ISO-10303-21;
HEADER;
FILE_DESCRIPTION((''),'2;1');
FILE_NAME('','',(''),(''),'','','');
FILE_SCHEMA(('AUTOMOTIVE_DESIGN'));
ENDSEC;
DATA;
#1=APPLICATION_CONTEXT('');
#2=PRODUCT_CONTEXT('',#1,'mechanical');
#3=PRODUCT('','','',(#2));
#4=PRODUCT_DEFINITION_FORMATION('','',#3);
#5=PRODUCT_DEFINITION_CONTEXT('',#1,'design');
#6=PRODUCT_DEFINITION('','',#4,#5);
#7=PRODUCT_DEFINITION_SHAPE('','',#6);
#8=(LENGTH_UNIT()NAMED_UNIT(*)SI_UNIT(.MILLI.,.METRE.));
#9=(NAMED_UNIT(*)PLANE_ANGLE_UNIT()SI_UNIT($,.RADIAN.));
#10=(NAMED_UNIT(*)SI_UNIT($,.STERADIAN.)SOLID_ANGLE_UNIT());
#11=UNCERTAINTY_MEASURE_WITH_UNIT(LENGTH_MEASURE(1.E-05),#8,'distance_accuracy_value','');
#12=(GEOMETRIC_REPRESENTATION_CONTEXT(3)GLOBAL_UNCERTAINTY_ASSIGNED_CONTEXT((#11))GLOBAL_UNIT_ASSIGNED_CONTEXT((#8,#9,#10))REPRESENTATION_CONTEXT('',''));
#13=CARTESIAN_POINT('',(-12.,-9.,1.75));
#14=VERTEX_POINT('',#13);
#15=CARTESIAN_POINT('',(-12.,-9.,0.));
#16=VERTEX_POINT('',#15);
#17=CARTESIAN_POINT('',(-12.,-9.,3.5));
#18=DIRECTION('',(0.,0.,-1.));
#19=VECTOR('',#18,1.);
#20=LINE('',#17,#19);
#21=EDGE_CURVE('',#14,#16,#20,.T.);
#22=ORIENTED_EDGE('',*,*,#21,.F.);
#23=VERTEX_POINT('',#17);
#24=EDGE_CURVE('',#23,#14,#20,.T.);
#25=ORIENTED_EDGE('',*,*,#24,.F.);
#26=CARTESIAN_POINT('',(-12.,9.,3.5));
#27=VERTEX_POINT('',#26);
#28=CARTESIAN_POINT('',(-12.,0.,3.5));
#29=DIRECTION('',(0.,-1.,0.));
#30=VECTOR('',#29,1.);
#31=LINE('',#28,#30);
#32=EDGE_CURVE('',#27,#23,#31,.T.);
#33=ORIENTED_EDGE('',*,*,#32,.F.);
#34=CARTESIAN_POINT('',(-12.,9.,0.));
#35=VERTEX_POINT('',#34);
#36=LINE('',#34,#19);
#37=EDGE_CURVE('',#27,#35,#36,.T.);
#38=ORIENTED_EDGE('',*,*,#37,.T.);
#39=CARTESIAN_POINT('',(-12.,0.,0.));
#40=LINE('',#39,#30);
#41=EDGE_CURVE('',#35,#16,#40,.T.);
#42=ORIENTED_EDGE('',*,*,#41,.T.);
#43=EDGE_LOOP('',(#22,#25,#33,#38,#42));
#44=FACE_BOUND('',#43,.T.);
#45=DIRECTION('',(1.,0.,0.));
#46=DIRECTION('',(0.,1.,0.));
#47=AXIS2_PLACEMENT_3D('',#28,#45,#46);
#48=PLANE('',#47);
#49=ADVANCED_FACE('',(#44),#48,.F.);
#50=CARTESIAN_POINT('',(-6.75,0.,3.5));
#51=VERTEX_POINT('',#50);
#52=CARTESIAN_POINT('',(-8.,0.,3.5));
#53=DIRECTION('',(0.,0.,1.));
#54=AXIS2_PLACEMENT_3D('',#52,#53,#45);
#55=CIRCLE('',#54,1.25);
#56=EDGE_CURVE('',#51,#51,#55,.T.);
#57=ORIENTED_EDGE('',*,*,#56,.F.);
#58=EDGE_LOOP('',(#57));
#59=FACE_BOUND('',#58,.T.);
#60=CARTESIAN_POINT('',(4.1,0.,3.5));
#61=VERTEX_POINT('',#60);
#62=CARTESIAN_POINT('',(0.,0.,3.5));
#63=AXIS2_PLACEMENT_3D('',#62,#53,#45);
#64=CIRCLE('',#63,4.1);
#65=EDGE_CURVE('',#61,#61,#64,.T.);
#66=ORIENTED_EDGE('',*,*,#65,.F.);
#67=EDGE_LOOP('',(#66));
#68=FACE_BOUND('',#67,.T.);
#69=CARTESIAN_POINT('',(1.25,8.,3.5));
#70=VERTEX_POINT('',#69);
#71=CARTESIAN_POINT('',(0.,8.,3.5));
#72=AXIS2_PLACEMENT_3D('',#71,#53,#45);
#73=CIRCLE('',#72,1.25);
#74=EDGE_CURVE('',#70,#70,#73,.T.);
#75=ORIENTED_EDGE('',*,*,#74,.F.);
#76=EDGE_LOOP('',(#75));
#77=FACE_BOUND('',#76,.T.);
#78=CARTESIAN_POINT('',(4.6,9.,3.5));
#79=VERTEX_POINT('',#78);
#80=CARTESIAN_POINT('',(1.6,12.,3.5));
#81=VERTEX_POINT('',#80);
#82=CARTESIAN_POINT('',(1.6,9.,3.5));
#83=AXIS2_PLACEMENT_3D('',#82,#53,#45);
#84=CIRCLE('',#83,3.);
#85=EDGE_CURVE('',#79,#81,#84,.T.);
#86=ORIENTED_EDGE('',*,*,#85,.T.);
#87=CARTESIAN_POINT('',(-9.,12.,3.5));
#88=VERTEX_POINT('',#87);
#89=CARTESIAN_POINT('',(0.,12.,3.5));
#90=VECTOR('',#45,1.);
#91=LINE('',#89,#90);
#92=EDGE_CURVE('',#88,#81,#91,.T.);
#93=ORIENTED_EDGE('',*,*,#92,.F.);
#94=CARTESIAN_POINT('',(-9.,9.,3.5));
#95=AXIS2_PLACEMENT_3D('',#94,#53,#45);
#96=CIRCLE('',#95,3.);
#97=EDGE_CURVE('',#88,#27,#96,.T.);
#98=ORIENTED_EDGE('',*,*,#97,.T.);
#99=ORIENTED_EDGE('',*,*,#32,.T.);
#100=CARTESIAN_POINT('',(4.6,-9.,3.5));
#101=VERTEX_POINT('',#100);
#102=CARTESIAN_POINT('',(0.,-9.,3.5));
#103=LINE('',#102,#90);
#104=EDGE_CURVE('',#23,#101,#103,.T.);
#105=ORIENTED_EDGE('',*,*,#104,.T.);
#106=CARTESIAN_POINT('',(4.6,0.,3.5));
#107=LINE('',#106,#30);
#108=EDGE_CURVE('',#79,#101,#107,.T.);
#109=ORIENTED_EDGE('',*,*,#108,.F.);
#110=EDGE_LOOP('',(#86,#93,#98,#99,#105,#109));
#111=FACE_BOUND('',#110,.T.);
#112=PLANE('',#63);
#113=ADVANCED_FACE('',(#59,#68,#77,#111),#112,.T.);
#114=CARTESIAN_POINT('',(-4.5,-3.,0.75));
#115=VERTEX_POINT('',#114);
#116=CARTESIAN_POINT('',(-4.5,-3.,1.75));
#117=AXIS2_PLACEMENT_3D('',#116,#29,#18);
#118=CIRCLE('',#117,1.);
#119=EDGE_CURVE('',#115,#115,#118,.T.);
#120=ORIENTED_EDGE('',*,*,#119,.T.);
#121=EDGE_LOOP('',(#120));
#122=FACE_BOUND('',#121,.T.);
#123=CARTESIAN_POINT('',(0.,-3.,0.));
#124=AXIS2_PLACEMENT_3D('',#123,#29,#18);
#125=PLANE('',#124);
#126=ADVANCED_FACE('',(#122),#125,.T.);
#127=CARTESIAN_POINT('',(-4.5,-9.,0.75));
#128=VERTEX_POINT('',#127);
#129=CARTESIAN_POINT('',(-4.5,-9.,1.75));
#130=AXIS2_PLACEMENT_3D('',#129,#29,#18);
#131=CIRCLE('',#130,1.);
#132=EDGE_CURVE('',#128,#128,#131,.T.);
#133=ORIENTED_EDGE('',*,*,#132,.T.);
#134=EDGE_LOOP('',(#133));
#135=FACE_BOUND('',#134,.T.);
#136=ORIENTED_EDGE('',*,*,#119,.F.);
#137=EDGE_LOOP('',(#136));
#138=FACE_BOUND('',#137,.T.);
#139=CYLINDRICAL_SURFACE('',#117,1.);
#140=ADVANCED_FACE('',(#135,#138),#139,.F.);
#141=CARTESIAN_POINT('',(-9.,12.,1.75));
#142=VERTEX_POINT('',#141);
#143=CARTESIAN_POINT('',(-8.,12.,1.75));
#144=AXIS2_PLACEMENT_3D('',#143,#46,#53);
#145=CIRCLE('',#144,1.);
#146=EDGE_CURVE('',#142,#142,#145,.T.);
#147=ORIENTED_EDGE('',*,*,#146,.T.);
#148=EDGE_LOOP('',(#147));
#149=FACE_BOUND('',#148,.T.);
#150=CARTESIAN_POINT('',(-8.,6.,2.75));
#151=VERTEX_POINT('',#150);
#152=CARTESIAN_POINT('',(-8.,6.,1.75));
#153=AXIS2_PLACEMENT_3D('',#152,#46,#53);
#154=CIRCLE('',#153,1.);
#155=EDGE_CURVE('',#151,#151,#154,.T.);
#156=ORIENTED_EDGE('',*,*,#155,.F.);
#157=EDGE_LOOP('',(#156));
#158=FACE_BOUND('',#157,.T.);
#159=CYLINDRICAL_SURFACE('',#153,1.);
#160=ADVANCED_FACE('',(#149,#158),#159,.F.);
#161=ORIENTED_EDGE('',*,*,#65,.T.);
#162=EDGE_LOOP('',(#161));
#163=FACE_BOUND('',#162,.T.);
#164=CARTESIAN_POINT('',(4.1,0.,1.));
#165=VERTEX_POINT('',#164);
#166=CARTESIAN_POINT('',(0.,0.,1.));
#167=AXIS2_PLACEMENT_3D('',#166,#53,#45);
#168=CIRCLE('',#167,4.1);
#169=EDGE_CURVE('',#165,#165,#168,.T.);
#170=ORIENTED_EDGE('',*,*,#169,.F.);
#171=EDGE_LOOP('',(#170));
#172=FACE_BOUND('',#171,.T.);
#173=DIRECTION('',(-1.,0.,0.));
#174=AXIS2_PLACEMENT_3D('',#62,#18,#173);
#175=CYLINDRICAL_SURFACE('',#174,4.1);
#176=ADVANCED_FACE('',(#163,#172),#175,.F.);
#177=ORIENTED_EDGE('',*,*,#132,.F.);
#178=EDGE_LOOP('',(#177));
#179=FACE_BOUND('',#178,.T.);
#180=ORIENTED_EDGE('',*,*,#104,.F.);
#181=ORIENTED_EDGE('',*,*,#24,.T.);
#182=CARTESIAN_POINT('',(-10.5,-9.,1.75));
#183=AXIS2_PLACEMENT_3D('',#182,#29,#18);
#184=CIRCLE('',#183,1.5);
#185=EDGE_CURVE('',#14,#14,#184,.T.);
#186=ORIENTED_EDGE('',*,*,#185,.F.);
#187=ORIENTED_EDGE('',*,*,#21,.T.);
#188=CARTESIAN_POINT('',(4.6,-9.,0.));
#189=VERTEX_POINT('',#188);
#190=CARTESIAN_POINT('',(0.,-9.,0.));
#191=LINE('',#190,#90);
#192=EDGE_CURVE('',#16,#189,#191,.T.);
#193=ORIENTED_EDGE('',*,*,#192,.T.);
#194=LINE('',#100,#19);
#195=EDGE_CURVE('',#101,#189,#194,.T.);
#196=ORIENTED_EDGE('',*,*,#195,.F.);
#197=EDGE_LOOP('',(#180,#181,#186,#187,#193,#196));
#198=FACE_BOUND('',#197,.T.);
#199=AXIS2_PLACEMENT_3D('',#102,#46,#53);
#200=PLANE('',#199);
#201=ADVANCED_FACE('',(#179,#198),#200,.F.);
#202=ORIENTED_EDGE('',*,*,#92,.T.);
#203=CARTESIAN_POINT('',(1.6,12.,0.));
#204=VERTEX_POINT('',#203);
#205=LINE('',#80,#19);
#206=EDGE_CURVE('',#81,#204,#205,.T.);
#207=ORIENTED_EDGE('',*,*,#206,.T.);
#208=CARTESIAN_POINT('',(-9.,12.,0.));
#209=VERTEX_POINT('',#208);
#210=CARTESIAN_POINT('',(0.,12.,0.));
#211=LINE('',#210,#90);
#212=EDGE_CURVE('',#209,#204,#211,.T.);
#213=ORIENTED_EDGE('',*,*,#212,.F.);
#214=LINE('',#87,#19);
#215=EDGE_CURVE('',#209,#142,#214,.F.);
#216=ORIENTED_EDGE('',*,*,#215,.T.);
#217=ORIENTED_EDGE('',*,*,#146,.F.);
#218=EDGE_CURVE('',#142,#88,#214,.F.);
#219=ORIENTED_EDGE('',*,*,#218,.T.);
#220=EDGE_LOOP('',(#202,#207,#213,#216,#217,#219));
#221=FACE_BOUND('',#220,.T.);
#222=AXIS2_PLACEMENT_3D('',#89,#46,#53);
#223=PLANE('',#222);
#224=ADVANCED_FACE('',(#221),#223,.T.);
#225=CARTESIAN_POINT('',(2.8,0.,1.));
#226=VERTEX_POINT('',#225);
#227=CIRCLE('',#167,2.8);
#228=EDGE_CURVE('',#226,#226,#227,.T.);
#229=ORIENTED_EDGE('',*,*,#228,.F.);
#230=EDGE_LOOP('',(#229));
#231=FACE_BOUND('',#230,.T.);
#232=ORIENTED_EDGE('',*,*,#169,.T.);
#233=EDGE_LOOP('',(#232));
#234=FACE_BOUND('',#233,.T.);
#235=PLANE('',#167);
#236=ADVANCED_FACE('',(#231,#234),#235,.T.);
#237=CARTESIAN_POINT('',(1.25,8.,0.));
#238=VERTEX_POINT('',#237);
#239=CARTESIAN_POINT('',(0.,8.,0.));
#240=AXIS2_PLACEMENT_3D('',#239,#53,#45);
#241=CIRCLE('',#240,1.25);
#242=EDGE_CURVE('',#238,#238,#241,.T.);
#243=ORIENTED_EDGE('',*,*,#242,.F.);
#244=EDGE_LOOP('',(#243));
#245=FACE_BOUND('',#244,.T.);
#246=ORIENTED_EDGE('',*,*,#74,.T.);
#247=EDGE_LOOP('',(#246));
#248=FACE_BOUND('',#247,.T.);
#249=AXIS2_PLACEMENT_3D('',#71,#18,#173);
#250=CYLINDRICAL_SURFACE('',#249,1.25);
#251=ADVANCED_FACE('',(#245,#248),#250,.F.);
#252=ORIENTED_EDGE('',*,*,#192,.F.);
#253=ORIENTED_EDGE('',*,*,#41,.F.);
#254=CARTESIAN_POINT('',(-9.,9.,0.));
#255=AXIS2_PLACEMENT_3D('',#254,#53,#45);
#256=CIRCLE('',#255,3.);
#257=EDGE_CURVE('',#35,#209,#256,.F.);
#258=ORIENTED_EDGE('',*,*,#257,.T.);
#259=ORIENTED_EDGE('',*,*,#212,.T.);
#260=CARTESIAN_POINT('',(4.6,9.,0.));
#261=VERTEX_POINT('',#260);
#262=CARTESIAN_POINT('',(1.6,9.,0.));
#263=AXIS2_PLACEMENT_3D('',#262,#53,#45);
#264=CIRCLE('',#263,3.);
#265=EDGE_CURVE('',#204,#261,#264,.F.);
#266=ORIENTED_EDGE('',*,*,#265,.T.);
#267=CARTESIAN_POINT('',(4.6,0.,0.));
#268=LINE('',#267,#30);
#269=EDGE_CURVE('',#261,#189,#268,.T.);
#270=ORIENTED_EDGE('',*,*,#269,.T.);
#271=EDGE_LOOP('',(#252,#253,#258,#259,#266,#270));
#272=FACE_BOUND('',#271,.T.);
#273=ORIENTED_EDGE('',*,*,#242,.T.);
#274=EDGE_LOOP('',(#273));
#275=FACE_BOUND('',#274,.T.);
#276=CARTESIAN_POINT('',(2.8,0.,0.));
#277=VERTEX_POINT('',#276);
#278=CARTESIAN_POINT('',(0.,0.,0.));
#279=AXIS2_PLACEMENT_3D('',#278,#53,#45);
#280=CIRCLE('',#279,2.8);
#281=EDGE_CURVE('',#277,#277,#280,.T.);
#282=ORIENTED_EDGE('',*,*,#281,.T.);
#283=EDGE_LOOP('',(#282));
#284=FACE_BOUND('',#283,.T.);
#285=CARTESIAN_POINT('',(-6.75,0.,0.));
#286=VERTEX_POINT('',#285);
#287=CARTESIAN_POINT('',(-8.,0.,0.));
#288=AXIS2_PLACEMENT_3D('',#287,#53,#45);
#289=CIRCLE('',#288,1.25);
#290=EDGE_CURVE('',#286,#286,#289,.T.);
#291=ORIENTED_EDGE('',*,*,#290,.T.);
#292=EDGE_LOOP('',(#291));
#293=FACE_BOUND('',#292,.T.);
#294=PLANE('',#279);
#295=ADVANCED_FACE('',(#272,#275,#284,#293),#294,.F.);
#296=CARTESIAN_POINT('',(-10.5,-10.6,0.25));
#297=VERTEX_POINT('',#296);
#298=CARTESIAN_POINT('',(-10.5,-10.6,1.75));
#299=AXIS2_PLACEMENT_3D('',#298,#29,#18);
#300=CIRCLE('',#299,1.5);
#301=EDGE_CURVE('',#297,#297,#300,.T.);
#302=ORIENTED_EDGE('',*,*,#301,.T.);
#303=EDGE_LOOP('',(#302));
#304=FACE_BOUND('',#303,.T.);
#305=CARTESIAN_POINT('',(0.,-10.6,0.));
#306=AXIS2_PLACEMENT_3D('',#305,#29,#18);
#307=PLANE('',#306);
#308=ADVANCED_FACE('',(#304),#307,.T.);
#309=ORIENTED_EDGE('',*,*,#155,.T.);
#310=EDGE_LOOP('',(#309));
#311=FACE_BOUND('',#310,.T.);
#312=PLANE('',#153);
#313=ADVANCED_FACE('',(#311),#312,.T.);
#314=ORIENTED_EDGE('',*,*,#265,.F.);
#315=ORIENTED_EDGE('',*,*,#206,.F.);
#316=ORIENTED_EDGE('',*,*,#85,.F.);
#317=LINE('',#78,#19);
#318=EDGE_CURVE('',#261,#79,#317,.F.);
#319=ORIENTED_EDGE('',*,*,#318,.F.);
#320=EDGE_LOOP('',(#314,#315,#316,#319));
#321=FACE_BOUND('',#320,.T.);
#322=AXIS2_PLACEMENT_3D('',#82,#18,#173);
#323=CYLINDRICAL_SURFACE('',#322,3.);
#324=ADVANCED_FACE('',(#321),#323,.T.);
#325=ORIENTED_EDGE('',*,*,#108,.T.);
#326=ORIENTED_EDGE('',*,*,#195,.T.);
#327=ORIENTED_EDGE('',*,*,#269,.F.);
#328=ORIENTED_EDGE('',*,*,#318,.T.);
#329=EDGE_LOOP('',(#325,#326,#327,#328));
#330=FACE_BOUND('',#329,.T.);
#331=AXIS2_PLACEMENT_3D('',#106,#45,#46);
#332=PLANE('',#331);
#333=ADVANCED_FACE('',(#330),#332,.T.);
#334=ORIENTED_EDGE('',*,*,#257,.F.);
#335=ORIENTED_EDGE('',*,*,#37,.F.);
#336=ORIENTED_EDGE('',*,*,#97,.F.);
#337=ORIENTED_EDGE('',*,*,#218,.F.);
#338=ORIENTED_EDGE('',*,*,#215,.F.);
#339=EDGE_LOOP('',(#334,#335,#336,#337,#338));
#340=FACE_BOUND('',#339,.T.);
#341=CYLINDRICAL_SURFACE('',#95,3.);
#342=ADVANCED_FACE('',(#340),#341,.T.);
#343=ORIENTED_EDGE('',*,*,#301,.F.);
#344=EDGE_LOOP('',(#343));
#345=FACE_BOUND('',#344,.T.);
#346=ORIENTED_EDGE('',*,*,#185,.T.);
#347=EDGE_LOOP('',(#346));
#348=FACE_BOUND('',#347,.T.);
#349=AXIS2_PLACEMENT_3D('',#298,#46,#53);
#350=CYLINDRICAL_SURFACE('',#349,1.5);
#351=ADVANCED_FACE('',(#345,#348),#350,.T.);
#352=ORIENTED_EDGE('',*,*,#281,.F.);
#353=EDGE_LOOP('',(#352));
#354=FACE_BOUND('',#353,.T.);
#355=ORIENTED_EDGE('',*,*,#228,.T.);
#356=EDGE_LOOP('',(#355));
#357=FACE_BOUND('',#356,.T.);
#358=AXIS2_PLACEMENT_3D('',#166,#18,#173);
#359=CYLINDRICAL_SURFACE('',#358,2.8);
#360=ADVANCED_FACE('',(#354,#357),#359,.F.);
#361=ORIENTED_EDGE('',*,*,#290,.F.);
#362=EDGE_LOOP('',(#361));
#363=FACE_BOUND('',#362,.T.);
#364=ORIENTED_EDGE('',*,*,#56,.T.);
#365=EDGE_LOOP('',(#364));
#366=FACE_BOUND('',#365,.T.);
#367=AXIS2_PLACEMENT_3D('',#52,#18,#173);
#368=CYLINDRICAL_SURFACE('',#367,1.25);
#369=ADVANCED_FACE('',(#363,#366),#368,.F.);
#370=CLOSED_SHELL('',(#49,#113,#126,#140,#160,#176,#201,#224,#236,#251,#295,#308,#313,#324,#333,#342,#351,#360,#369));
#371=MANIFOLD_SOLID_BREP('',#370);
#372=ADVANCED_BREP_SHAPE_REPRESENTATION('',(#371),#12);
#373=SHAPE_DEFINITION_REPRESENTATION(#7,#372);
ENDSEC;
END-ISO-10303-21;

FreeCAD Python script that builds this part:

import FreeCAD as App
import Part
import Sketcher

V = App.Vector


def edges_at(feature, points):
    """Names of the edges that pass closest to the given points."""
    edges = feature.Shape.Edges
    near = lambda p: min(range(len(edges)), key=lambda i: edges[i].distToShape(Part.Vertex(*p))[0])
    return sorted({f"Edge{near(p) + 1}" for p in points})


def add_polygon(sketch, points):
    """Adds a closed chain of lines whose ends are joined by coincident constraints."""
    first, n = sketch.GeometryCount, len(points)
    for a, b in zip(points, points[1:] + points[:1]):
        sketch.addGeometry(Part.LineSegment(App.Vector(*a, 0), App.Vector(*b, 0)), False)
    for i in range(n):
        sketch.addConstraint(Sketcher.Constraint("Coincident", first + i, 2, first + (i + 1) % n, 1))

doc = App.newDocument("Part")
body = doc.addObject("PartDesign::Body", "Body")

sketch1 = body.newObject("Sketcher::SketchObject", "Sketch")
sketch1.AttachmentSupport = (doc.getObject("XY_Plane"), [""])
sketch1.MapMode = "FlatFace"
add_polygon(sketch1, [(-12, 12), (-12, -9), (4.6, -9), (4.6, 12)])
sketch1.addGeometry(Part.Circle(V(-8, 0, 0), V(0, 0, 1), 1.2), False)
sketch1.addGeometry(Part.Circle(V(0, 0, 0), V(0, 0, 1), 4.1), False)
sketch1.addGeometry(Part.Circle(V(0, 8, 0), V(0, 0, 1), 1.2), False)
sketch1.addConstraint([
    Sketcher.Constraint("Vertical", 0),
    Sketcher.Constraint("Horizontal", 1),
    Sketcher.Constraint("Vertical", 2),
    Sketcher.Constraint("Horizontal", 3),
    Sketcher.Constraint("Coincident", 5, 3, -1, 1),
    Sketcher.Constraint("Equal", 4, 6),
    Sketcher.Constraint("PointOnObject", 4, 3, -1),
    Sketcher.Constraint("PointOnObject", 6, 3, -2),
    Sketcher.Constraint("Diameter", 4, 2.5),
    Sketcher.Constraint("Diameter", 5, 8.2),
    Sketcher.Constraint("DistanceY", 0, 2, 0, 1, 21.0),
    Sketcher.Constraint("DistanceX", 1, 1, 1, 2, 16.6),
    Sketcher.Constraint("DistanceX", 4, 3, -1, 1, 8.0),
    Sketcher.Constraint("DistanceY", -1, 1, 6, 3, 8.0),
    Sketcher.Constraint("DistanceX", 0, 2, -1, 1, 12.0),
    Sketcher.Constraint("DistanceY", 0, 2, -1, 1, 9.0),
])
pad1 = body.newObject("PartDesign::Pad", "Pad")
pad1.Profile = sketch1
pad1.Length = 3.5

sketch2 = body.newObject("Sketcher::SketchObject", "Sketch001")
sketch2.AttachmentSupport = (doc.getObject("XY_Plane"), [""])
sketch2.MapMode = "FlatFace"
sketch2.addGeometry([
    Part.Circle(V(0, 0, 0), V(0, 0, 1), 4.1),
    Part.Circle(V(0, 0, 0), V(0, 0, 1), 2.8),
], False)
sketch2.addConstraint([
    Sketcher.Constraint("Coincident", 0, 3, -1, 1),
    Sketcher.Constraint("Coincident", 1, 3, -1, 1),
    Sketcher.Constraint("Diameter", 0, 8.2),
    Sketcher.Constraint("Diameter", 1, 5.6),
])
pad2 = body.newObject("PartDesign::Pad", "Pad001")
pad2.Profile = sketch2
pad2.Length = 1
doc.recompute()

fillet = body.newObject("PartDesign::Fillet", "Fillet")
fillet.Base = (pad2, edges_at(pad2, [(-12, 12, 1.75)]))
fillet.Radius = 3
doc.recompute()

fillet2 = body.newObject("PartDesign::Fillet", "Fillet001")
fillet2.Base = (fillet, edges_at(fillet, [(4.6, 12, 1.75)]))
fillet2.Radius = 3

sketch3 = body.newObject("Sketcher::SketchObject", "Sketch002")
sketch3.AttachmentSupport = (doc.getObject("XZ_Plane"), [""])
sketch3.MapMode = "FlatFace"
sketch3.AttachmentOffset = App.Placement(V(0, 0, 9), App.Rotation())
sketch3.addGeometry(Part.Circle(V(-4.5, 1.8, 0), V(0, 0, 1), 1), False)
sketch3.addConstraint([
    Sketcher.Constraint("Diameter", 0, 2.0),
    Sketcher.Constraint("DistanceX", 0, 3, -1, 1, 4.5),
    Sketcher.Constraint("DistanceY", -1, 1, 0, 3, 1.75),
])
pocket1 = body.newObject("PartDesign::Pocket", "Pocket")
pocket1.Profile = sketch3
pocket1.Length = 6

sketch4 = body.newObject("Sketcher::SketchObject", "Sketch003")
sketch4.AttachmentSupport = (doc.getObject("XZ_Plane"), [""])
sketch4.MapMode = "FlatFace"
sketch4.AttachmentOffset = App.Placement(V(0, 0, 9), App.Rotation())
sketch4.addGeometry(Part.Circle(V(-10.5, 1.8, 0), V(0, 0, 1), 1.5), False)
sketch4.addConstraint([
    Sketcher.Constraint("Diameter", 0, 3.0),
    Sketcher.Constraint("DistanceX", 0, 3, -1, 1, 10.5),
    Sketcher.Constraint("DistanceY", -1, 1, 0, 3, 1.75),
])
pad3 = body.newObject("PartDesign::Pad", "Pad002")
pad3.Profile = sketch4
pad3.Length = 1.6

sketch5 = body.newObject("Sketcher::SketchObject", "Sketch004")
sketch5.AttachmentSupport = (doc.getObject("XZ_Plane"), [""])
sketch5.MapMode = "FlatFace"
sketch5.AttachmentOffset = App.Placement(V(0, 0, -12), App.Rotation())
sketch5.addGeometry(Part.Circle(V(-8, 1.8, 0), V(0, 0, 1), 1), False)
sketch5.addConstraint([
    Sketcher.Constraint("Diameter", 0, 2.0),
    Sketcher.Constraint("DistanceX", 0, 3, -1, 1, 8.0),
    Sketcher.Constraint("DistanceY", -1, 1, 0, 3, 1.75),
])
pocket2 = body.newObject("PartDesign::Pocket", "Pocket001")
pocket2.Profile = sketch5
pocket2.Length = 6
pocket2.Reversed = True

doc.recompute()
